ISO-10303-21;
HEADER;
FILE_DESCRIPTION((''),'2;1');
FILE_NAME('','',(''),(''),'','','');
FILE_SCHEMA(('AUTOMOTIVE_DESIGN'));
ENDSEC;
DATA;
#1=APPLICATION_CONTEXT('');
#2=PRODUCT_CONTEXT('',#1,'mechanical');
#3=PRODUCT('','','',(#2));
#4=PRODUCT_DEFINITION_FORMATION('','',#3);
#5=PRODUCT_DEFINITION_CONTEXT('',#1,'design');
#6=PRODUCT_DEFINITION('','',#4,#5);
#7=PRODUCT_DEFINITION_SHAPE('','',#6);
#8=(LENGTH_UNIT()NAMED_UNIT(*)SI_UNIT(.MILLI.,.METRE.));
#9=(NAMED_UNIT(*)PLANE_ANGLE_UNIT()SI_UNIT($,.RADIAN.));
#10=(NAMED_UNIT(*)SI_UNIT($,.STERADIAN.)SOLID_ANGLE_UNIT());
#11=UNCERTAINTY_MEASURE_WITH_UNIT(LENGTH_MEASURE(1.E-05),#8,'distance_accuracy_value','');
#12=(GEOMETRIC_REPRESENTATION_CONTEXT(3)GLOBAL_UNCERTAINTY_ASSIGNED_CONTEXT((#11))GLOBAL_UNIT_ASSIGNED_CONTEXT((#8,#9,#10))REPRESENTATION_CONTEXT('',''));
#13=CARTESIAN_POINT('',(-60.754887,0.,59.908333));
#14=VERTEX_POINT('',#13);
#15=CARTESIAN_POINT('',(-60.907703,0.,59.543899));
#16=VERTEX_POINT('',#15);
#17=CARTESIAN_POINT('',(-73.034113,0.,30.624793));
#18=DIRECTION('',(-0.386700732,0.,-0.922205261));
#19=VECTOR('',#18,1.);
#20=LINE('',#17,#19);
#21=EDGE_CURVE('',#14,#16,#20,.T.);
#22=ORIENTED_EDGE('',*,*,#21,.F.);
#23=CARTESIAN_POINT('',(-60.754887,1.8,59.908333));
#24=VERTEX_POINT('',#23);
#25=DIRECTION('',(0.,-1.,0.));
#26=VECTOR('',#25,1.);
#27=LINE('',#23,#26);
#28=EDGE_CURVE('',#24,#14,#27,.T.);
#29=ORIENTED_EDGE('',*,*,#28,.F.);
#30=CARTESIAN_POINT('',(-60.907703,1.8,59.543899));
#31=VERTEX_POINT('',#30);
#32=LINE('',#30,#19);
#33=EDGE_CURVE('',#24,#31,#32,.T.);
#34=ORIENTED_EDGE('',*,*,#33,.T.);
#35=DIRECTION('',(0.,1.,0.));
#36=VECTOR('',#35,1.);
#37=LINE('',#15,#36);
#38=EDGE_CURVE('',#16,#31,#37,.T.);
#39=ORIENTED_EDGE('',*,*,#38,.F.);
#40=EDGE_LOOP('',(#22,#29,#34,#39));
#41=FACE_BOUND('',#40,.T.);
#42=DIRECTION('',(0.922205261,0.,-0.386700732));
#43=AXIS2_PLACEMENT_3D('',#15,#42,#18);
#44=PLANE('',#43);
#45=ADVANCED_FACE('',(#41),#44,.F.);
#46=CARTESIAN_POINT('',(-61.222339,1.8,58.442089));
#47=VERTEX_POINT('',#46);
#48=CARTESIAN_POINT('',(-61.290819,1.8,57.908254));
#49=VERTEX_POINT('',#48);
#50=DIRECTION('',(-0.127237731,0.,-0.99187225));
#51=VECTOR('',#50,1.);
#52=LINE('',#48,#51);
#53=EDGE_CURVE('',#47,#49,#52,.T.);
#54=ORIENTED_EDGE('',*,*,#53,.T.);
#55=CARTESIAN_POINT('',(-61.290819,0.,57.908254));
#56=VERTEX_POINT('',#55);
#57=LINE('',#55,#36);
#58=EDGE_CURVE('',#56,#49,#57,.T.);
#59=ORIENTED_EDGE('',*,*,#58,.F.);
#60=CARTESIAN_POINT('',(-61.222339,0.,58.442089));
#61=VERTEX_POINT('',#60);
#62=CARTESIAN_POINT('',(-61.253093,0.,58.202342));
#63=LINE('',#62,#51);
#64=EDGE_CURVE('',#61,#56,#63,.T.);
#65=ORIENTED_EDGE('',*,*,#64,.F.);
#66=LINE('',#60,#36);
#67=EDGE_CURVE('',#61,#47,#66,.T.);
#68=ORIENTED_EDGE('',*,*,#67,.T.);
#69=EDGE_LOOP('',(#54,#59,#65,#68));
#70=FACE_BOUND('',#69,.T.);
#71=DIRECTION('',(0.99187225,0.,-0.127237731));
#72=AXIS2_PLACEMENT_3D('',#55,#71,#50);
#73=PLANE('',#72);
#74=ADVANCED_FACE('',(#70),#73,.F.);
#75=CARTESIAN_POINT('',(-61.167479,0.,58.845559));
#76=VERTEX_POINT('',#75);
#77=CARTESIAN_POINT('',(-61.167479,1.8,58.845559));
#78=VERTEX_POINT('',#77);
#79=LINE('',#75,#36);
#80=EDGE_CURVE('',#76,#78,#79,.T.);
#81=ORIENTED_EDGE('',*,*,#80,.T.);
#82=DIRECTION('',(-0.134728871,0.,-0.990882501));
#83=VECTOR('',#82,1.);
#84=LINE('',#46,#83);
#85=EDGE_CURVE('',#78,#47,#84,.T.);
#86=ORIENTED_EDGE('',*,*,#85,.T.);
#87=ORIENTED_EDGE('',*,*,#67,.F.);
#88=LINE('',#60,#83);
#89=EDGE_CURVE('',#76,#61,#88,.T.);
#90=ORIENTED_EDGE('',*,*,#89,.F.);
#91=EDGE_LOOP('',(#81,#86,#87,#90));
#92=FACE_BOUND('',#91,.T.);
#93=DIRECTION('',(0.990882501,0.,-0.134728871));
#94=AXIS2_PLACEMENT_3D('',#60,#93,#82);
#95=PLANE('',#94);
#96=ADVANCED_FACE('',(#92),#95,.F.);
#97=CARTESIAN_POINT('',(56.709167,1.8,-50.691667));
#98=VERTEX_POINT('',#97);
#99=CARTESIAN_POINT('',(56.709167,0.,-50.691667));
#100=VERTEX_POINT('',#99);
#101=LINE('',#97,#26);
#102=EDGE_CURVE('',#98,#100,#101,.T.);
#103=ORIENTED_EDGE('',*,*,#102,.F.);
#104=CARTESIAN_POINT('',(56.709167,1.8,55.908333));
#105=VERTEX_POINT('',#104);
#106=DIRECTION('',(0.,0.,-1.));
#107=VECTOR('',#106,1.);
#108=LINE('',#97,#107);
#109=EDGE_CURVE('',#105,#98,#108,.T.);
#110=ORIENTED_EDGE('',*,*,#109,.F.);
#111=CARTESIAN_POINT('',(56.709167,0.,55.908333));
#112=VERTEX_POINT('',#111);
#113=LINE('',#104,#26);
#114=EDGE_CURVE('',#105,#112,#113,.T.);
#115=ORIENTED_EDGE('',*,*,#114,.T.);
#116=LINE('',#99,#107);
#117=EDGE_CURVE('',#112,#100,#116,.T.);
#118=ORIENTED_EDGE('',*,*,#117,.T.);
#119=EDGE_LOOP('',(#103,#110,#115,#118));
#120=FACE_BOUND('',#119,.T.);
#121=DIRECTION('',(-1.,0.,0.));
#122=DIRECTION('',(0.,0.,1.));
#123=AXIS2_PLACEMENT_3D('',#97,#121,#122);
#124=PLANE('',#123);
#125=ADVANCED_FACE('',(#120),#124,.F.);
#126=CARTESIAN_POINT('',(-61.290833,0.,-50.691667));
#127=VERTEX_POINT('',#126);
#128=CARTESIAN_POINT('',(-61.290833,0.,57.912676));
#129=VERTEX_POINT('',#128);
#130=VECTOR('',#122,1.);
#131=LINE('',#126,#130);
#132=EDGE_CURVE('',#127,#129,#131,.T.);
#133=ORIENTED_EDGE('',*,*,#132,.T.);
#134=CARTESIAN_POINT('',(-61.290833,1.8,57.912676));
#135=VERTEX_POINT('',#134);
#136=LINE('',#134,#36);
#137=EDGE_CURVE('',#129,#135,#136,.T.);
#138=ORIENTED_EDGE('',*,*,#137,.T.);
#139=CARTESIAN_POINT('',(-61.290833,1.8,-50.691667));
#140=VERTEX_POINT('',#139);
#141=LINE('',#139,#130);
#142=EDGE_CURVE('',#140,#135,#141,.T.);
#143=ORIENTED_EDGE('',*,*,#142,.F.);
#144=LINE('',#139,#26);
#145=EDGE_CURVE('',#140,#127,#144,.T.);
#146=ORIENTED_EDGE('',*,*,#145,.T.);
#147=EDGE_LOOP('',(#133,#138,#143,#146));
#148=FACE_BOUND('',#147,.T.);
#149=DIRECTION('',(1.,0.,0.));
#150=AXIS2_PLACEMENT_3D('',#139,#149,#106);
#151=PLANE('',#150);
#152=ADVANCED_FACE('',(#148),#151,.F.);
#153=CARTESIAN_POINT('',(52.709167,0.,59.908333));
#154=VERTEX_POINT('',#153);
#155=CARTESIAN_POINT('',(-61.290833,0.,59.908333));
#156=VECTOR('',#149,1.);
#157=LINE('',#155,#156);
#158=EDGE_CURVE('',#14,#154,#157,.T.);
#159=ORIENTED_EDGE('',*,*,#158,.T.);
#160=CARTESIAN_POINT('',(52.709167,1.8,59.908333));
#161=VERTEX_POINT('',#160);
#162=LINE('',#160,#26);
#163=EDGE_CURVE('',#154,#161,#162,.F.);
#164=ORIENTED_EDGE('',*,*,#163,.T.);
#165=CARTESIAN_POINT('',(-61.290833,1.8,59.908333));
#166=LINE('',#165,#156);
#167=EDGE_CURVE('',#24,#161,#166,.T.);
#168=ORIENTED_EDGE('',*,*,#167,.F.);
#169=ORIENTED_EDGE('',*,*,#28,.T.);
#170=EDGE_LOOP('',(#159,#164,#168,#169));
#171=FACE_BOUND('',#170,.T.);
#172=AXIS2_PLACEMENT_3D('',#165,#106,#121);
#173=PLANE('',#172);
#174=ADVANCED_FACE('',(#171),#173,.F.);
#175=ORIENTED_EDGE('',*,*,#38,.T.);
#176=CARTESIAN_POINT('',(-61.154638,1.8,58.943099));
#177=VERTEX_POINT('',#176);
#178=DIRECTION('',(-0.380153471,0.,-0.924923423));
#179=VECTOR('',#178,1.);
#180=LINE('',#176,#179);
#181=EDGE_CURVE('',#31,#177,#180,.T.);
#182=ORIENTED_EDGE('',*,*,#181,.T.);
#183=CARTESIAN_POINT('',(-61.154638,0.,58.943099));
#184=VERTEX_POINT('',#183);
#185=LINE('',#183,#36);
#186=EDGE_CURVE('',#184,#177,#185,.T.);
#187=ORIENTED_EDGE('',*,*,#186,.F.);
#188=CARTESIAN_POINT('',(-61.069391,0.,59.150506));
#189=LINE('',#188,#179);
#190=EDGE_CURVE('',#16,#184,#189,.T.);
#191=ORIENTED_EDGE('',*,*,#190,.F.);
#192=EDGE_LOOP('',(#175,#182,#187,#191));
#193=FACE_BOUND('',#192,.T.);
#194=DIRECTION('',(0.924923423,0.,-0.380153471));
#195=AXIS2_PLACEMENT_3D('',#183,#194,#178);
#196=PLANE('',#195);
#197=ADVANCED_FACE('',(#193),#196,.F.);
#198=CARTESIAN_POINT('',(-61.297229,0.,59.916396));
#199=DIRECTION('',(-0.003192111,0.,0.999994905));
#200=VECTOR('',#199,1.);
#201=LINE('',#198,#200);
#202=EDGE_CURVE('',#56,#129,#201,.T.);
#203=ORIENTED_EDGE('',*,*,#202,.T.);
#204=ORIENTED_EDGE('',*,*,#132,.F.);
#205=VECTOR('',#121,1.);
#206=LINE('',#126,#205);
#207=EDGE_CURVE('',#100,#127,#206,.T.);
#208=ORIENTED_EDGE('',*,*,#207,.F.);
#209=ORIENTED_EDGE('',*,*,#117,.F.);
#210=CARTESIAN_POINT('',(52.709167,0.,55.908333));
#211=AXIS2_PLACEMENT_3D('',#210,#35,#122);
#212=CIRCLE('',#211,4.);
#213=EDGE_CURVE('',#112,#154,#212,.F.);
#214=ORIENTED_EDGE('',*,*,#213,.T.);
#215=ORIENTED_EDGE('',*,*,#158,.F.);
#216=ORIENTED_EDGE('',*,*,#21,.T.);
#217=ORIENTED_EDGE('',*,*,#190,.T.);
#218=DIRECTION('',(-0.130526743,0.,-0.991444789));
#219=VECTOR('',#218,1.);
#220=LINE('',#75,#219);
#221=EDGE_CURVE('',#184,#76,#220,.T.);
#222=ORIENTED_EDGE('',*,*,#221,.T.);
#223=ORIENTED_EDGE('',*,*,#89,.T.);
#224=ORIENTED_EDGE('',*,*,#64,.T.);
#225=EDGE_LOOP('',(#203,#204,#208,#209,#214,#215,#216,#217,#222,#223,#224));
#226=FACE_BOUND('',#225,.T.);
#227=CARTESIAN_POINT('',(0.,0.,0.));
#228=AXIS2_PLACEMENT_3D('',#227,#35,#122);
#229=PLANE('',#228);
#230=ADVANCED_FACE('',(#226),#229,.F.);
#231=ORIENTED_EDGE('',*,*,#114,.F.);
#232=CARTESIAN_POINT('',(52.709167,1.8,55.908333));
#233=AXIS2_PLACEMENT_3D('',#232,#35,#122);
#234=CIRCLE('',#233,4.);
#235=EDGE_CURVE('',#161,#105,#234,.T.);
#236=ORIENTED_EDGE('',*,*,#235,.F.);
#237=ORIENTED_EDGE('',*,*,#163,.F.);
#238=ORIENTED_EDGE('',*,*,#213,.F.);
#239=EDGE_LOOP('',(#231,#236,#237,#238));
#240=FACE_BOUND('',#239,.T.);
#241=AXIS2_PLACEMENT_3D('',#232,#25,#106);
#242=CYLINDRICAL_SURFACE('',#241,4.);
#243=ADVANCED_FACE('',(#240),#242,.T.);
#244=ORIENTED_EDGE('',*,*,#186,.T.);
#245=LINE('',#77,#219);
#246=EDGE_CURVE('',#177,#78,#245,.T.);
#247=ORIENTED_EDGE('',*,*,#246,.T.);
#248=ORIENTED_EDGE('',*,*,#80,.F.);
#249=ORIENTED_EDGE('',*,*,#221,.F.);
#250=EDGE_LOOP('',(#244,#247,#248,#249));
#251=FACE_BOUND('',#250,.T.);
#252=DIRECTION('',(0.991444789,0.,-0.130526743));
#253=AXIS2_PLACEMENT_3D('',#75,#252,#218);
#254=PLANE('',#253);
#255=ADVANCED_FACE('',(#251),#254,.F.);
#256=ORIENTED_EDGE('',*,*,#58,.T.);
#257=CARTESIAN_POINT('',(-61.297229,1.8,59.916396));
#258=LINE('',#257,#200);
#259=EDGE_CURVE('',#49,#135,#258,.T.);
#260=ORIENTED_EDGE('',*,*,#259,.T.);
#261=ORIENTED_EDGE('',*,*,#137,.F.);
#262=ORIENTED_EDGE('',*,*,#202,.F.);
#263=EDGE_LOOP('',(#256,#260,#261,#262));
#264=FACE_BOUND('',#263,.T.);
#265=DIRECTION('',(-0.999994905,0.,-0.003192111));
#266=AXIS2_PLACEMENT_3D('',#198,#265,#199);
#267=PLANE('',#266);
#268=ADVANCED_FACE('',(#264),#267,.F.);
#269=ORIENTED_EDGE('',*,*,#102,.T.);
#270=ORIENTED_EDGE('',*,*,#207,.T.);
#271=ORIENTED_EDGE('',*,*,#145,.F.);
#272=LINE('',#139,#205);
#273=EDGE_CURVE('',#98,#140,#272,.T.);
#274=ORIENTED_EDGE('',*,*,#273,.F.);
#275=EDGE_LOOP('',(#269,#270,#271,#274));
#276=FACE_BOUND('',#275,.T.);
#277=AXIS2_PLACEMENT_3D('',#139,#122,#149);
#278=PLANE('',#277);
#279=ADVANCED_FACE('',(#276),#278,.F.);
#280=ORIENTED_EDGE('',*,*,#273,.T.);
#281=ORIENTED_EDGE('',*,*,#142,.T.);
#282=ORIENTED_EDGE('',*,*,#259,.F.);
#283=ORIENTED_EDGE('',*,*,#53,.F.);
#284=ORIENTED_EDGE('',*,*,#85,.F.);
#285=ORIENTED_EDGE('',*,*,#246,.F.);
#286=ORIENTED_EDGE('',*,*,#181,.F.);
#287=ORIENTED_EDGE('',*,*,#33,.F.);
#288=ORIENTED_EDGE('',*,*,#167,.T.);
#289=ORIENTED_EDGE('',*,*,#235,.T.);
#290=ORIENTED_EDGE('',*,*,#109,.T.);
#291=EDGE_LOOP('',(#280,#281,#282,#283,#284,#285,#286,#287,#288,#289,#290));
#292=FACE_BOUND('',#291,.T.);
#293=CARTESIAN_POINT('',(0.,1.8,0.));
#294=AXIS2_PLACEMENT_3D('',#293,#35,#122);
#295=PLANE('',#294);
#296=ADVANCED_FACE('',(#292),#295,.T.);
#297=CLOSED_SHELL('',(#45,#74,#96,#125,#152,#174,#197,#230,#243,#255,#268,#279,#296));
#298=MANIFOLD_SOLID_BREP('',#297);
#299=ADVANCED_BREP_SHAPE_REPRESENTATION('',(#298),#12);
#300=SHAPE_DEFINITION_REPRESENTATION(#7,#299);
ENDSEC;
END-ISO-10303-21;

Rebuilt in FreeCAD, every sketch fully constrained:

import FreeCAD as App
import Part
import Sketcher
Q = App.Units.Quantity


def edges_at(feature, points):
    """Names of the edges that pass closest to the given points."""
    edges = feature.Shape.Edges
    near = lambda p: min(range(len(edges)), key=lambda i: edges[i].distToShape(Part.Vertex(*p))[0])
    return sorted({f"Edge{near(p) + 1}" for p in points})

doc = App.newDocument("Part")
params = doc.addObject("Spreadsheet::Sheet", "Params")
for row, (alias, value) in enumerate([
    ("sketch1_width", "118 mm"),
    ("sketch1_height", "110.6 mm"),
    ("pad1_length", "1.8 mm"),
    ("fillet_radius", "4 mm"),
], start=1):
    params.set(f"A{row}", alias)
    params.set(f"B{row}", "=" + value)
    params.setAlias(f"B{row}", alias)

body = doc.addObject("PartDesign::Body", "Body")

# Sketch on XZ plane
sketch1 = body.newObject("Sketcher::SketchObject", "Sketch")
sketch1.AttachmentSupport = (doc.getObject("XZ_Plane"), [""])
sketch1.MapMode = "FlatFace"
sketch1.addGeometry(Part.LineSegment(App.Vector(-61, -51, 0), App.Vector(-61, 60, 0)), False)
sketch1.addGeometry(Part.LineSegment(App.Vector(-61, 60, 0), App.Vector(57, 60, 0)), False)
sketch1.addGeometry(Part.LineSegment(App.Vector(57, 60, 0), App.Vector(57, -51, 0)), False)
sketch1.addGeometry(Part.LineSegment(App.Vector(57, -51, 0), App.Vector(-61, -51, 0)), False)
sketch1.addConstraint(Sketcher.Constraint("Coincident", 0, 2, 1, 1))
sketch1.addConstraint(Sketcher.Constraint("Coincident", 1, 2, 2, 1))
sketch1.addConstraint(Sketcher.Constraint("Coincident", 2, 2, 3, 1))
sketch1.addConstraint(Sketcher.Constraint("Coincident", 3, 2, 0, 1))
sketch1.addConstraint(Sketcher.Constraint("Vertical", 0))
sketch1.addConstraint(Sketcher.Constraint("Horizontal", 1))
sketch1.addConstraint(Sketcher.Constraint("Vertical", 2))
sketch1.addConstraint(Sketcher.Constraint("Horizontal", 3))
sketch1.addConstraint(Sketcher.Constraint("DistanceX", 1, 1, 1, 2, Q("118 mm")))
sketch1.addConstraint(Sketcher.Constraint("DistanceY", 0, 1, 0, 2, Q("110.6 mm")))
sketch1.addConstraint(Sketcher.Constraint("DistanceX", 0, 2, -1, 1, Q("61.290833 mm")))
sketch1.addConstraint(Sketcher.Constraint("DistanceY", -1, 1, 0, 2, Q("59.908333 mm")))
sketch1.setExpression("Constraints[8]", "Params.sketch1_width")
sketch1.setExpression("Constraints[9]", "Params.sketch1_height")
pad1 = body.newObject("PartDesign::Pad", "Pad")
pad1.Profile = sketch1
pad1.setExpression("Length", "Params.pad1_length")
pad1.Reversed = True

# Sketch on XZ plane
sketch2 = body.newObject("Sketcher::SketchObject", "Sketch001")
sketch2.AttachmentSupport = (doc.getObject("XZ_Plane"), [""])
sketch2.MapMode = "FlatFace"
sketch2.AttachmentOffset = App.Placement(App.Vector(0, 0, -1.8), App.Rotation())
sketch2.addGeometry(Part.LineSegment(App.Vector(-61.297, 59.916, 0), App.Vector(-60.752, 59.916, 0)), False)
sketch2.addGeometry(Part.LineSegment(App.Vector(-60.752, 59.916, 0), App.Vector(-60.908, 59.544, 0)), False)
sketch2.addGeometry(Part.LineSegment(App.Vector(-60.908, 59.544, 0), App.Vector(-61.069, 59.151, 0)), False)
sketch2.addGeometry(Part.LineSegment(App.Vector(-61.069, 59.151, 0), App.Vector(-61.129, 59.006, 0)), False)
sketch2.addGeometry(Part.LineSegment(App.Vector(-61.129, 59.006, 0), App.Vector(-61.151, 58.952, 0)), False)
sketch2.addGeometry(Part.LineSegment(App.Vector(-61.151, 58.952, 0), App.Vector(-61.155, 58.943, 0)), False)
sketch2.addGeometry(Part.LineSegment(App.Vector(-61.155, 58.943, 0), App.Vector(-61.167, 58.846, 0)), False)
sketch2.addGeometry(Part.LineSegment(App.Vector(-61.167, 58.846, 0), App.Vector(-61.222, 58.442, 0)), False)
sketch2.addGeometry(Part.LineSegment(App.Vector(-61.222, 58.442, 0), App.Vector(-61.253, 58.202, 0)), False)
sketch2.addGeometry(Part.LineSegment(App.Vector(-61.253, 58.202, 0), App.Vector(-61.291, 57.908, 0)), False)
sketch2.addGeometry(Part.LineSegment(App.Vector(-61.291, 57.908, 0), App.Vector(-61.297, 59.916, 0)), False)
sketch2.addConstraint(Sketcher.Constraint("Coincident", 0, 2, 1, 1))
sketch2.addConstraint(Sketcher.Constraint("Coincident", 1, 2, 2, 1))
sketch2.addConstraint(Sketcher.Constraint("Coincident", 2, 2, 3, 1))
sketch2.addConstraint(Sketcher.Constraint("Coincident", 3, 2, 4, 1))
sketch2.addConstraint(Sketcher.Constraint("Coincident", 4, 2, 5, 1))
sketch2.addConstraint(Sketcher.Constraint("Coincident", 5, 2, 6, 1))
sketch2.addConstraint(Sketcher.Constraint("Coincident", 6, 2, 7, 1))
sketch2.addConstraint(Sketcher.Constraint("Coincident", 7, 2, 8, 1))
sketch2.addConstraint(Sketcher.Constraint("Coincident", 8, 2, 9, 1))
sketch2.addConstraint(Sketcher.Constraint("Coincident", 9, 2, 10, 1))
sketch2.addConstraint(Sketcher.Constraint("Coincident", 10, 2, 0, 1))
sketch2.addConstraint(Sketcher.Constraint("Horizontal", 0))
sketch2.addConstraint(Sketcher.Constraint("Parallel", 2, 3))
sketch2.addConstraint(Sketcher.Constraint("Parallel", 3, 4))
sketch2.addConstraint(Sketcher.Constraint("Parallel", 4, 5))
sketch2.addConstraint(Sketcher.Constraint("Parallel", 8, 9))
sketch2.addConstraint(Sketcher.Constraint("Angle", 8, Q("-97.310001 deg")))
sketch2.addConstraint(Sketcher.Constraint("Distance", 9, Q("0.296498 mm")))
sketch2.addConstraint(Sketcher.Constraint("DistanceY", -1, 1, 1, 2, Q("59.543899 mm")))
sketch2.addConstraint(Sketcher.Constraint("DistanceY", -1, 1, 5, 2, Q("58.943099 mm")))
sketch2.addConstraint(Sketcher.Constraint("DistanceX", 3, 2, 2, 2, Q("0.0592 mm")))
sketch2.addConstraint(Sketcher.Constraint("DistanceX", 7, 2, 5, 2, Q("0.067701 mm")))
sketch2.addConstraint(Sketcher.Constraint("Distance", 1, Q("0.40392 mm")))
sketch2.addConstraint(Sketcher.Constraint("Distance", 4, Q("0.058741 mm")))
sketch2.addConstraint(Sketcher.Constraint("Distance", 6, Q("0.098382 mm")))
sketch2.addConstraint(Sketcher.Constraint("Distance", 8, Q("0.241712 mm")))
sketch2.addConstraint(Sketcher.Constraint("DistanceX", 0, 1, 0, 2, Q("0.545723 mm")))
sketch2.addConstraint(Sketcher.Constraint("DistanceX", 2, 2, -1, 1, Q("61.069391 mm")))
sketch2.addConstraint(Sketcher.Constraint("DistanceY", -1, 1, 3, 2, Q("59.006471 mm")))
sketch2.addConstraint(Sketcher.Constraint("DistanceX", 4, 2, -1, 1, Q("61.150922 mm")))
sketch2.addConstraint(Sketcher.Constraint("DistanceX", 6, 2, -1, 1, Q("61.167479 mm")))
sketch2.addConstraint(Sketcher.Constraint("DistanceY", -1, 1, 7, 2, Q("58.442089 mm")))
sketch2.addConstraint(Sketcher.Constraint("DistanceX", 10, 2, -1, 1, Q("61.297229 mm")))
pocket1 = body.newObject("PartDesign::Pocket", "Pocket")
pocket1.Profile = sketch2
pocket1.Type = "ThroughAll"
pocket1.Reversed = True
doc.recompute()

fillet = body.newObject("PartDesign::Fillet", "Fillet")
fillet.Base = (pocket1, edges_at(pocket1, [(56.709, 0.9, 59.908)]))
fillet.setExpression("Radius", "Params.fillet_radius")

doc.recompute()
